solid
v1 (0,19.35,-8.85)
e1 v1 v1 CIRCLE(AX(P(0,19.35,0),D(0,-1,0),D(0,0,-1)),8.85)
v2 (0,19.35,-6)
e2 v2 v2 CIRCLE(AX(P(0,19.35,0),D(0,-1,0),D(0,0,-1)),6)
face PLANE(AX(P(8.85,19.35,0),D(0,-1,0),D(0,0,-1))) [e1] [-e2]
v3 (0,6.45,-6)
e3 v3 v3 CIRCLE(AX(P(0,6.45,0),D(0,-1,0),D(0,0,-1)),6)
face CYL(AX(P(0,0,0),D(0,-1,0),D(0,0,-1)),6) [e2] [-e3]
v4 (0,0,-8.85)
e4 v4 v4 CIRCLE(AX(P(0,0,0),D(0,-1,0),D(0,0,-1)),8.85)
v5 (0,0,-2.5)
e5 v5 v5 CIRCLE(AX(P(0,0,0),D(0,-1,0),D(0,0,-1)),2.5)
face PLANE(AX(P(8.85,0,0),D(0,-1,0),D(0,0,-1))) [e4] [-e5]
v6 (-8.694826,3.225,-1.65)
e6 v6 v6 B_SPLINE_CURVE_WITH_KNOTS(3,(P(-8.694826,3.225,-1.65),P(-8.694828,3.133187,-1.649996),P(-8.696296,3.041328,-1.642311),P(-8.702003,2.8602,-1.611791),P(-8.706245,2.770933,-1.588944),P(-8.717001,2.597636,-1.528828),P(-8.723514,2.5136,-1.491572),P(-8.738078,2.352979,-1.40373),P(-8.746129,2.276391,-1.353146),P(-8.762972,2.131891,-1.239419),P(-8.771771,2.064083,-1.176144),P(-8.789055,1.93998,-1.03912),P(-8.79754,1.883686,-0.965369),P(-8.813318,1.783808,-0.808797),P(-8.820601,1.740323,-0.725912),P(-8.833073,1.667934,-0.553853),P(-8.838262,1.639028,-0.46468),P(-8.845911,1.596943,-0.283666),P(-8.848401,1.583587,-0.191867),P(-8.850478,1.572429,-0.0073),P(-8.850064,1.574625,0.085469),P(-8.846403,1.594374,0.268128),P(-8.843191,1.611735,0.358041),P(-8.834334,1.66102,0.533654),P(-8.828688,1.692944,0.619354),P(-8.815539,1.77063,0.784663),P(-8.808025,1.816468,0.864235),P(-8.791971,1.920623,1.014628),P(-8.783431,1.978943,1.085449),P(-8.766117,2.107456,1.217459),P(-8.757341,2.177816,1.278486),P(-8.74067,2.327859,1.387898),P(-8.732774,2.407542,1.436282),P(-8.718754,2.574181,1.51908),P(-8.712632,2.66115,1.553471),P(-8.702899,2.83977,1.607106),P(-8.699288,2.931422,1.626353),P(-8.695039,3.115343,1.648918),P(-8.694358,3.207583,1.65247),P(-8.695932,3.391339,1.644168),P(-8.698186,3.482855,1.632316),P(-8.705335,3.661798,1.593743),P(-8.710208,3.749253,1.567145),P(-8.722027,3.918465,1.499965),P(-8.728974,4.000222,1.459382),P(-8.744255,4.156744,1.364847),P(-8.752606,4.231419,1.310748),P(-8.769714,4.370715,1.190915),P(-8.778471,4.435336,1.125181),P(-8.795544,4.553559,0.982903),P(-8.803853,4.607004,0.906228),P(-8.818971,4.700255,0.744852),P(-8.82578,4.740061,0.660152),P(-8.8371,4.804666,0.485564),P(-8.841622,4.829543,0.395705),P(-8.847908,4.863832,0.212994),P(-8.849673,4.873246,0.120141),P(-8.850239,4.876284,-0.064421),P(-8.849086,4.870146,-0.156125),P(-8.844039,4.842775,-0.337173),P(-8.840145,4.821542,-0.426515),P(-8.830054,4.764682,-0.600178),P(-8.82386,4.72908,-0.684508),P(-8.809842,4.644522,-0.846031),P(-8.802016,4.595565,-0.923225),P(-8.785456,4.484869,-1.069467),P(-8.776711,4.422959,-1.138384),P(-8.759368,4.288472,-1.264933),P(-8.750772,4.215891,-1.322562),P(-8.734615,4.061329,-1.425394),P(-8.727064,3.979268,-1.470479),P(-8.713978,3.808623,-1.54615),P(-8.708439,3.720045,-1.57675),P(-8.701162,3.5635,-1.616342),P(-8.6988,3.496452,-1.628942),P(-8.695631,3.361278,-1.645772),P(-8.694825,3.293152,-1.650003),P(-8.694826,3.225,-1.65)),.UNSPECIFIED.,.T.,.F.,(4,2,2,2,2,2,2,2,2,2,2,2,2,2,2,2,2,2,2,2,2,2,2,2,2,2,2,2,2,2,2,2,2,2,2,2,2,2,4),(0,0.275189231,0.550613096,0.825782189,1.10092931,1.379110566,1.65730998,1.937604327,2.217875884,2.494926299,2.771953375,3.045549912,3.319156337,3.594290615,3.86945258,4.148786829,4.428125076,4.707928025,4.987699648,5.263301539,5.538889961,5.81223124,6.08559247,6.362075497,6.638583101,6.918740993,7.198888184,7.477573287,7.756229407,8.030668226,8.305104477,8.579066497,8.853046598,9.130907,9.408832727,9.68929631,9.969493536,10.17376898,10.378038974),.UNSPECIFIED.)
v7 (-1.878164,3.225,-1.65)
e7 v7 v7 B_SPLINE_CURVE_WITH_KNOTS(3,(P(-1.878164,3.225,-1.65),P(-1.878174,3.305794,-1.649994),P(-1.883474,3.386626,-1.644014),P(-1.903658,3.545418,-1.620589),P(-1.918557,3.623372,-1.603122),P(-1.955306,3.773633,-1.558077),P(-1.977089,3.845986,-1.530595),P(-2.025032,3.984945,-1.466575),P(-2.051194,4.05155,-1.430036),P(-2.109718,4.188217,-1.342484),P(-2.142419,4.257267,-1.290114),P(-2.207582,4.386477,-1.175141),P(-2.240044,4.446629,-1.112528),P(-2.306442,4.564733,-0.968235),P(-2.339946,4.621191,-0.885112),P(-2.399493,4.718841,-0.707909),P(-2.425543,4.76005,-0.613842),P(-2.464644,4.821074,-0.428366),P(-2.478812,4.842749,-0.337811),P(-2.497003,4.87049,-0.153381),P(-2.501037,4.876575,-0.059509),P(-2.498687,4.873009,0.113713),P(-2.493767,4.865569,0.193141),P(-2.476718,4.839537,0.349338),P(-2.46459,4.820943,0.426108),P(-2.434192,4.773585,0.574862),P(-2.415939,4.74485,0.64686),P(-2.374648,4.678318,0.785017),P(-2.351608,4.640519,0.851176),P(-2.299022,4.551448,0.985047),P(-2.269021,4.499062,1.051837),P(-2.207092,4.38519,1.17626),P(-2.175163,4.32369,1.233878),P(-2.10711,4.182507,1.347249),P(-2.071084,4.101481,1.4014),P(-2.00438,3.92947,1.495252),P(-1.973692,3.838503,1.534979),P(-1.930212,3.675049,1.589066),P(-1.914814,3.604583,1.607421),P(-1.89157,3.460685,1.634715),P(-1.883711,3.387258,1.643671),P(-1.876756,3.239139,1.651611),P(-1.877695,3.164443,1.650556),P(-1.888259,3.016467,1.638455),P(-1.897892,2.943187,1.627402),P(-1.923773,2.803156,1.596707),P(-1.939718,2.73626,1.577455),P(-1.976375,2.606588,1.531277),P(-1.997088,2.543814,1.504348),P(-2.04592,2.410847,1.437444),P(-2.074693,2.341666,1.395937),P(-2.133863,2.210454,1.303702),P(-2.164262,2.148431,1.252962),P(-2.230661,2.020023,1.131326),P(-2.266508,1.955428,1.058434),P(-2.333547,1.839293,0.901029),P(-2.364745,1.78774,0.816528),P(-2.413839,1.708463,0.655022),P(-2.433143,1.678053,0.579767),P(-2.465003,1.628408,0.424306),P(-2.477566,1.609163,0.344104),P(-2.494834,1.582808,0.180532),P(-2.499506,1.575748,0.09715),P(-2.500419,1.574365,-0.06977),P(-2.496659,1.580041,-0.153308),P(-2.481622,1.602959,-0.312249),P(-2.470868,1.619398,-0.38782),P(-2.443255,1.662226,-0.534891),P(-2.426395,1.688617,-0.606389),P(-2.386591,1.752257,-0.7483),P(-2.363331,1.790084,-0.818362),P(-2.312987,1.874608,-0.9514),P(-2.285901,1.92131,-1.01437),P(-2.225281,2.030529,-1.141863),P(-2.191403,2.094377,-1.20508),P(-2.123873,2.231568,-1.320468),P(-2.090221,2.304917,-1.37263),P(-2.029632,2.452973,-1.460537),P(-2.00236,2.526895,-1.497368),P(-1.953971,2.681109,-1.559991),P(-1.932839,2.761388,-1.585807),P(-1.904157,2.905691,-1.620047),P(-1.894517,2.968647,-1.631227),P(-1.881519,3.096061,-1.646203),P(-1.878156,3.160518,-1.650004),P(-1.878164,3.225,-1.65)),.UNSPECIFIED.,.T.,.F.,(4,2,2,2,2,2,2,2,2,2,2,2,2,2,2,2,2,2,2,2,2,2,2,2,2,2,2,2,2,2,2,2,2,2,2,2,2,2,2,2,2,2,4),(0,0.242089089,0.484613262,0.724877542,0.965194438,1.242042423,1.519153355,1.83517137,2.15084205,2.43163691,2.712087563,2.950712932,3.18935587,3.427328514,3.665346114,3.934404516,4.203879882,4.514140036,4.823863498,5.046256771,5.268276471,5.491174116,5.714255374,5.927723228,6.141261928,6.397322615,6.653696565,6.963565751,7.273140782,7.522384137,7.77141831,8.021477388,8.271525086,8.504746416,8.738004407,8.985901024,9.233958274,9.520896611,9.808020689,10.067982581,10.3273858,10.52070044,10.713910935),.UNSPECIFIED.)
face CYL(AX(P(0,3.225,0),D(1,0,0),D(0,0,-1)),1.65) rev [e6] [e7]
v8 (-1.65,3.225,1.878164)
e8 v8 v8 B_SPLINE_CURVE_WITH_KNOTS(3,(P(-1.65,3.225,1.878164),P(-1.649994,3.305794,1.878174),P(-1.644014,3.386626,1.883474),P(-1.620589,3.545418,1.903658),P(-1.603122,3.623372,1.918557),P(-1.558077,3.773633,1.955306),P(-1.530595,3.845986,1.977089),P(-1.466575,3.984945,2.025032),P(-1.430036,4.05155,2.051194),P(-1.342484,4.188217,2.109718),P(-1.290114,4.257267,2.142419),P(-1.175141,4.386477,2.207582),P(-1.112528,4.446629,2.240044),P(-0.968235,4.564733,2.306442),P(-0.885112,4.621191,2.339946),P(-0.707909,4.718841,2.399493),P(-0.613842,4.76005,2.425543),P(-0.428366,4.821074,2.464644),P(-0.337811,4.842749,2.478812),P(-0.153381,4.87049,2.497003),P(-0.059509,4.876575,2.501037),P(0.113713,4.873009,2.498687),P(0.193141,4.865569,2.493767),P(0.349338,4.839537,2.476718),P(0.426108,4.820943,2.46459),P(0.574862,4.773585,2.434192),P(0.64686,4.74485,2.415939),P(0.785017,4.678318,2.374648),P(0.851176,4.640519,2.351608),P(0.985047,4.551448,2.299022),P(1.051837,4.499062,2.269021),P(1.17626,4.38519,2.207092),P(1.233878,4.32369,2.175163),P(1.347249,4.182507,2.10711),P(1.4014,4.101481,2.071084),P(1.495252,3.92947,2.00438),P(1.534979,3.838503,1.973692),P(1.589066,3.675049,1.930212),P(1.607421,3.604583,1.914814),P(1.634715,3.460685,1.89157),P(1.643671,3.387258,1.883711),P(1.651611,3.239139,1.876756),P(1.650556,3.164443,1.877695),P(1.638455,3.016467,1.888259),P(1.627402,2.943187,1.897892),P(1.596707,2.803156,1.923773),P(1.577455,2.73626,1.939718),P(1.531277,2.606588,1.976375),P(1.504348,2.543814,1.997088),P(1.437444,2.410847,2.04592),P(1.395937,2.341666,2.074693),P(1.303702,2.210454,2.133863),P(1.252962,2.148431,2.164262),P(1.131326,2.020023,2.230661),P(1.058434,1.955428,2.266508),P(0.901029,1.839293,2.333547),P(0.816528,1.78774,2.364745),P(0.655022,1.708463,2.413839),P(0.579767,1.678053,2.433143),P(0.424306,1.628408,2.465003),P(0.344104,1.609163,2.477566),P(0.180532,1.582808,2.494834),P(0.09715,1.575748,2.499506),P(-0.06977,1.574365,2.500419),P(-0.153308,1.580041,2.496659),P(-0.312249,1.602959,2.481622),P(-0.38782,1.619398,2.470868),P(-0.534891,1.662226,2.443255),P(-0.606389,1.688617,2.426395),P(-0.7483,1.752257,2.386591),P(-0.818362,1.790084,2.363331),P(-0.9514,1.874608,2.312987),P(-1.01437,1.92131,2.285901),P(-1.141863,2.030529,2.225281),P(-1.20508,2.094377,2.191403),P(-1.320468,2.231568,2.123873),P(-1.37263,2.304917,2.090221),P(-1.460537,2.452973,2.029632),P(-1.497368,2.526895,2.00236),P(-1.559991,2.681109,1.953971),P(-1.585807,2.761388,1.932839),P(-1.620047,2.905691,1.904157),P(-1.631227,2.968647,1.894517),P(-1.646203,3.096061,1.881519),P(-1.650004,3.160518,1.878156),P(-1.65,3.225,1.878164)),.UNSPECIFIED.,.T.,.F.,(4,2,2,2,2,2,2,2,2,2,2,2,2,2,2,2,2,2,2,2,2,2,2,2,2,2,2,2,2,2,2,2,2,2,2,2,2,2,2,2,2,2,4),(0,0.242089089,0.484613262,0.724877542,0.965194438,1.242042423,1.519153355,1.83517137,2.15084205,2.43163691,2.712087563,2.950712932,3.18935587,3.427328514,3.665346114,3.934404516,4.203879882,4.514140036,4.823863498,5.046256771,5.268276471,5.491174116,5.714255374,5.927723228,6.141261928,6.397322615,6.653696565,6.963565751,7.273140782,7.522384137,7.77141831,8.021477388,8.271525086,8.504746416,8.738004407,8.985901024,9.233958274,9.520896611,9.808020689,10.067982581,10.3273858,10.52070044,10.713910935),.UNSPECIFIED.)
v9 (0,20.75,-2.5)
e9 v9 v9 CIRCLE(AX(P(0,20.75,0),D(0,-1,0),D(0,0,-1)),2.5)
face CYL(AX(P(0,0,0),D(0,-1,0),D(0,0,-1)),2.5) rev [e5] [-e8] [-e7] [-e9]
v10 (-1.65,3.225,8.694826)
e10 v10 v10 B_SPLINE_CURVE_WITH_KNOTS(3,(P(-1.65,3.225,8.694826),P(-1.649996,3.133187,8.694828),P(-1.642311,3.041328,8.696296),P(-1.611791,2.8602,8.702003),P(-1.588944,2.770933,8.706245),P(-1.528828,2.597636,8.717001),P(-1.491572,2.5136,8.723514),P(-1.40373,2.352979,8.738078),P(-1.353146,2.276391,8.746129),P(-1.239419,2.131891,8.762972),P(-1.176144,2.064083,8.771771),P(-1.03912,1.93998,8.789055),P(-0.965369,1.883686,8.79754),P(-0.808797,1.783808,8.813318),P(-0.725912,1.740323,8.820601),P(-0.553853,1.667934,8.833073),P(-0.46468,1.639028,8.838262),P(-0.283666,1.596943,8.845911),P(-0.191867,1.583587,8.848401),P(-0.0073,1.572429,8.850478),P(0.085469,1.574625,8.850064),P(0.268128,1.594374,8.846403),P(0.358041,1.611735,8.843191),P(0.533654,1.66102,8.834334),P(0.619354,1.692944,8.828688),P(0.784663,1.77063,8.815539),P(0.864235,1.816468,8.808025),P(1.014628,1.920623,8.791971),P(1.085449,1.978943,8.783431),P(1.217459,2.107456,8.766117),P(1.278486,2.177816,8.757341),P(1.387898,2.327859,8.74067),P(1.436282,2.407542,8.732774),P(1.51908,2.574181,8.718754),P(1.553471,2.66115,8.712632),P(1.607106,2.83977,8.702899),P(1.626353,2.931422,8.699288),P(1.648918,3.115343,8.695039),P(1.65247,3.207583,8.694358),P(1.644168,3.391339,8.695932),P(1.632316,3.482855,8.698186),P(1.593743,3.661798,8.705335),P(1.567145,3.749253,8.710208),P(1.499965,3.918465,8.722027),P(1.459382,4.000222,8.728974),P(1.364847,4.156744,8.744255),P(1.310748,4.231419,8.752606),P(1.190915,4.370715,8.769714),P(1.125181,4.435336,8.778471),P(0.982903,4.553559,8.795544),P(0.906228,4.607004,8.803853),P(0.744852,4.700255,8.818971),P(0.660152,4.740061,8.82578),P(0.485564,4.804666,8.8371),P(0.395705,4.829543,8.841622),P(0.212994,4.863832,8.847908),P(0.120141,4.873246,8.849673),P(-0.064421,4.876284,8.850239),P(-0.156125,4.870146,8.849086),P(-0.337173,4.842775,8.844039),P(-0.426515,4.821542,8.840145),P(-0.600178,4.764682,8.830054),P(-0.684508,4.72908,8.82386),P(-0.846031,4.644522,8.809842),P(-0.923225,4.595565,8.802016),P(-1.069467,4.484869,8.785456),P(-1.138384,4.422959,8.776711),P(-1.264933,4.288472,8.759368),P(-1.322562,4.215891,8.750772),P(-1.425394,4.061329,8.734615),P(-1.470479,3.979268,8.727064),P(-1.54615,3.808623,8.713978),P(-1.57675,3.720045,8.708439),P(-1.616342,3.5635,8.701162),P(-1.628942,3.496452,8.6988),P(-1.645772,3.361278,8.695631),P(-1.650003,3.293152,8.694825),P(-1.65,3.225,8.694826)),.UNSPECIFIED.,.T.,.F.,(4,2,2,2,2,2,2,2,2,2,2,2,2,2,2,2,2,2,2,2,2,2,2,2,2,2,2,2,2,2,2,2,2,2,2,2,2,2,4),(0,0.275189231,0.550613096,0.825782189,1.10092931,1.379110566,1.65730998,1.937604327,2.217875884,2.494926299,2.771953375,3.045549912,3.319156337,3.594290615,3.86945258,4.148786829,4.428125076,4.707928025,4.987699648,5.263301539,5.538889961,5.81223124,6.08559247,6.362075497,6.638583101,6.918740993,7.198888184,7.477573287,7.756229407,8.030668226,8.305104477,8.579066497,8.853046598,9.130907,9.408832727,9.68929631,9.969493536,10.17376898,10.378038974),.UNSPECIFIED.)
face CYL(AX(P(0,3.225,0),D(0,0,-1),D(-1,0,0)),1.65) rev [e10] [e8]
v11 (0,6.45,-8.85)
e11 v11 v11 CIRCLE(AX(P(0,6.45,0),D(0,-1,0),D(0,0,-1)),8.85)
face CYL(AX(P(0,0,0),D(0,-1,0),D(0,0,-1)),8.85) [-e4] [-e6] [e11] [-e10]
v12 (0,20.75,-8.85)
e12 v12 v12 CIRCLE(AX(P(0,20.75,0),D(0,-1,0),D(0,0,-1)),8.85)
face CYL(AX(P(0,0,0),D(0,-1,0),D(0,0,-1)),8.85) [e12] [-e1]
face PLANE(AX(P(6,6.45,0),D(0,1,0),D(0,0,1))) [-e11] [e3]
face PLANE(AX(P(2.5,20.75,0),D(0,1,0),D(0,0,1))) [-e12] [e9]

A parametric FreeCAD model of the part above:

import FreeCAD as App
import Part
import Sketcher

V = App.Vector


def add_polygon(sketch, points):
    """Adds a closed chain of lines whose ends are joined by coincident constraints."""
    first, n = sketch.GeometryCount, len(points)
    for a, b in zip(points, points[1:] + points[:1]):
        sketch.addGeometry(Part.LineSegment(App.Vector(*a, 0), App.Vector(*b, 0)), False)
    for i in range(n):
        sketch.addConstraint(Sketcher.Constraint("Coincident", first + i, 2, first + (i + 1) % n, 1))

doc = App.newDocument("Part")
params = doc.addObject("Spreadsheet::Sheet", "Params")
for row, (alias, value) in enumerate([
    ("sketch1_height", "12.9 mm"),
    ("sketch1_height2", "1.4 mm"),
    ("sketch1_width", "2.85 mm"),
    ("sketch1_width2", "6.35 mm"),
    ("sketch1_height3", "6.45 mm"),
    ("revolution_angle", "360 deg"),
    ("sketch2_width", "1.65 mm"),
    ("groove_angle", "360 deg"),
], start=1):
    params.set(f"A{row}", alias)
    params.set(f"B{row}", "=" + value)
    params.setAlias(f"B{row}", alias)

body = doc.addObject("PartDesign::Body", "Body")

# Sketch on XY plane
sketch1 = body.newObject("Sketcher::SketchObject", "Sketch")
sketch1.AttachmentSupport = (doc.getObject("XY_Plane"), [""])
sketch1.MapMode = "FlatFace"
add_polygon(sketch1, [(8.8, 0), (8.8, 6.5), (6, 6.5), (6, 19.4), (8.8, 19.4), (8.8, 20.8), (2.5, 20.8), (2.5, 0)])  # lines 0-7
sketch1.addConstraint([
    Sketcher.Constraint("Vertical", 0),
    Sketcher.Constraint("Horizontal", 1),
    Sketcher.Constraint("Vertical", 2),
    Sketcher.Constraint("Horizontal", 3),
    Sketcher.Constraint("Vertical", 4),
    Sketcher.Constraint("Horizontal", 5),
    Sketcher.Constraint("Vertical", 6),
    Sketcher.Constraint("Horizontal", 7),
    Sketcher.Constraint("PointOnObject", 6, 2, -1),
    Sketcher.Constraint("Vertical", 0, 2, 3, 2),
    Sketcher.Constraint("DistanceY", 2, 1, 2, 2, 12.9),
    Sketcher.Constraint("DistanceY", 4, 1, 4, 2, 1.4),
    Sketcher.Constraint("DistanceX", -1, 1, 1, 2, 6.0),
    Sketcher.Constraint("DistanceX", 1, 2, 1, 1, 2.85),
    Sketcher.Constraint("DistanceX", 5, 2, 5, 1, 6.35),
    Sketcher.Constraint("DistanceY", 0, 1, 0, 2, 6.45),
])
sketch1.setExpression("Constraints[18]", "Params.sketch1_height")
sketch1.setExpression("Constraints[19]", "Params.sketch1_height2")
sketch1.setExpression("Constraints[21]", "Params.sketch1_width")
sketch1.setExpression("Constraints[22]", "Params.sketch1_width2")
sketch1.setExpression("Constraints[23]", "Params.sketch1_height3")
revolution = body.newObject("PartDesign::Revolution", "Revolution")
revolution.Profile = sketch1
revolution.ReferenceAxis = (sketch1, ["V_Axis"])
revolution.setExpression("Angle", "Params.revolution_angle")

# Sketch on YZ plane
sketch2 = body.newObject("Sketcher::SketchObject", "Sketch001")
sketch2.AttachmentSupport = (doc.getObject("YZ_Plane"), [""])
sketch2.MapMode = "FlatFace"
add_polygon(sketch2, [(3.2, 8.9), (3.2, 0), (4.9, 0), (4.9, 8.9)])  # lines 0-3
sketch2.addGeometry(Part.LineSegment(V(3.2, 0, 0), V(3.2, 8.9, 0)), True)  # axis
sketch2.addConstraint([
    Sketcher.Constraint("Vertical", 0),
    Sketcher.Constraint("Horizontal", 1),
    Sketcher.Constraint("Vertical", 2),
    Sketcher.Constraint("Horizontal", 3),
    Sketcher.Constraint("Vertical", 4),
    Sketcher.Constraint("Coincident", 4, 1, 0, 2),
    Sketcher.Constraint("PointOnObject", 0, 2, -1),
    Sketcher.Constraint("Horizontal", 2, 2, 4, 2),
    Sketcher.Constraint("DistanceX", 1, 1, 1, 2, 1.65),
    Sketcher.Constraint("DistanceY", 0, 2, 0, 1, 8.851),
    Sketcher.Constraint("DistanceX", -1, 1, 0, 2, 3.225),
])
sketch2.setExpression("Constraints[12]", "Params.sketch2_width")
groove = body.newObject("PartDesign::Groove", "Groove")
groove.Profile = sketch2
groove.ReferenceAxis = (sketch2, ["Axis0"])
groove.setExpression("Angle", "Params.groove_angle")
doc.recompute()

polarpattern = body.newObject("PartDesign::PolarPattern", "PolarPattern")
polarpattern.Originals = [groove]
polarpattern.Axis = (doc.getObject("Y_Axis"), [""])
polarpattern.Angle = 90
polarpattern.Occurrences = 2
polarpattern.Reversed = True
body.Tip = polarpattern

doc.recompute()
